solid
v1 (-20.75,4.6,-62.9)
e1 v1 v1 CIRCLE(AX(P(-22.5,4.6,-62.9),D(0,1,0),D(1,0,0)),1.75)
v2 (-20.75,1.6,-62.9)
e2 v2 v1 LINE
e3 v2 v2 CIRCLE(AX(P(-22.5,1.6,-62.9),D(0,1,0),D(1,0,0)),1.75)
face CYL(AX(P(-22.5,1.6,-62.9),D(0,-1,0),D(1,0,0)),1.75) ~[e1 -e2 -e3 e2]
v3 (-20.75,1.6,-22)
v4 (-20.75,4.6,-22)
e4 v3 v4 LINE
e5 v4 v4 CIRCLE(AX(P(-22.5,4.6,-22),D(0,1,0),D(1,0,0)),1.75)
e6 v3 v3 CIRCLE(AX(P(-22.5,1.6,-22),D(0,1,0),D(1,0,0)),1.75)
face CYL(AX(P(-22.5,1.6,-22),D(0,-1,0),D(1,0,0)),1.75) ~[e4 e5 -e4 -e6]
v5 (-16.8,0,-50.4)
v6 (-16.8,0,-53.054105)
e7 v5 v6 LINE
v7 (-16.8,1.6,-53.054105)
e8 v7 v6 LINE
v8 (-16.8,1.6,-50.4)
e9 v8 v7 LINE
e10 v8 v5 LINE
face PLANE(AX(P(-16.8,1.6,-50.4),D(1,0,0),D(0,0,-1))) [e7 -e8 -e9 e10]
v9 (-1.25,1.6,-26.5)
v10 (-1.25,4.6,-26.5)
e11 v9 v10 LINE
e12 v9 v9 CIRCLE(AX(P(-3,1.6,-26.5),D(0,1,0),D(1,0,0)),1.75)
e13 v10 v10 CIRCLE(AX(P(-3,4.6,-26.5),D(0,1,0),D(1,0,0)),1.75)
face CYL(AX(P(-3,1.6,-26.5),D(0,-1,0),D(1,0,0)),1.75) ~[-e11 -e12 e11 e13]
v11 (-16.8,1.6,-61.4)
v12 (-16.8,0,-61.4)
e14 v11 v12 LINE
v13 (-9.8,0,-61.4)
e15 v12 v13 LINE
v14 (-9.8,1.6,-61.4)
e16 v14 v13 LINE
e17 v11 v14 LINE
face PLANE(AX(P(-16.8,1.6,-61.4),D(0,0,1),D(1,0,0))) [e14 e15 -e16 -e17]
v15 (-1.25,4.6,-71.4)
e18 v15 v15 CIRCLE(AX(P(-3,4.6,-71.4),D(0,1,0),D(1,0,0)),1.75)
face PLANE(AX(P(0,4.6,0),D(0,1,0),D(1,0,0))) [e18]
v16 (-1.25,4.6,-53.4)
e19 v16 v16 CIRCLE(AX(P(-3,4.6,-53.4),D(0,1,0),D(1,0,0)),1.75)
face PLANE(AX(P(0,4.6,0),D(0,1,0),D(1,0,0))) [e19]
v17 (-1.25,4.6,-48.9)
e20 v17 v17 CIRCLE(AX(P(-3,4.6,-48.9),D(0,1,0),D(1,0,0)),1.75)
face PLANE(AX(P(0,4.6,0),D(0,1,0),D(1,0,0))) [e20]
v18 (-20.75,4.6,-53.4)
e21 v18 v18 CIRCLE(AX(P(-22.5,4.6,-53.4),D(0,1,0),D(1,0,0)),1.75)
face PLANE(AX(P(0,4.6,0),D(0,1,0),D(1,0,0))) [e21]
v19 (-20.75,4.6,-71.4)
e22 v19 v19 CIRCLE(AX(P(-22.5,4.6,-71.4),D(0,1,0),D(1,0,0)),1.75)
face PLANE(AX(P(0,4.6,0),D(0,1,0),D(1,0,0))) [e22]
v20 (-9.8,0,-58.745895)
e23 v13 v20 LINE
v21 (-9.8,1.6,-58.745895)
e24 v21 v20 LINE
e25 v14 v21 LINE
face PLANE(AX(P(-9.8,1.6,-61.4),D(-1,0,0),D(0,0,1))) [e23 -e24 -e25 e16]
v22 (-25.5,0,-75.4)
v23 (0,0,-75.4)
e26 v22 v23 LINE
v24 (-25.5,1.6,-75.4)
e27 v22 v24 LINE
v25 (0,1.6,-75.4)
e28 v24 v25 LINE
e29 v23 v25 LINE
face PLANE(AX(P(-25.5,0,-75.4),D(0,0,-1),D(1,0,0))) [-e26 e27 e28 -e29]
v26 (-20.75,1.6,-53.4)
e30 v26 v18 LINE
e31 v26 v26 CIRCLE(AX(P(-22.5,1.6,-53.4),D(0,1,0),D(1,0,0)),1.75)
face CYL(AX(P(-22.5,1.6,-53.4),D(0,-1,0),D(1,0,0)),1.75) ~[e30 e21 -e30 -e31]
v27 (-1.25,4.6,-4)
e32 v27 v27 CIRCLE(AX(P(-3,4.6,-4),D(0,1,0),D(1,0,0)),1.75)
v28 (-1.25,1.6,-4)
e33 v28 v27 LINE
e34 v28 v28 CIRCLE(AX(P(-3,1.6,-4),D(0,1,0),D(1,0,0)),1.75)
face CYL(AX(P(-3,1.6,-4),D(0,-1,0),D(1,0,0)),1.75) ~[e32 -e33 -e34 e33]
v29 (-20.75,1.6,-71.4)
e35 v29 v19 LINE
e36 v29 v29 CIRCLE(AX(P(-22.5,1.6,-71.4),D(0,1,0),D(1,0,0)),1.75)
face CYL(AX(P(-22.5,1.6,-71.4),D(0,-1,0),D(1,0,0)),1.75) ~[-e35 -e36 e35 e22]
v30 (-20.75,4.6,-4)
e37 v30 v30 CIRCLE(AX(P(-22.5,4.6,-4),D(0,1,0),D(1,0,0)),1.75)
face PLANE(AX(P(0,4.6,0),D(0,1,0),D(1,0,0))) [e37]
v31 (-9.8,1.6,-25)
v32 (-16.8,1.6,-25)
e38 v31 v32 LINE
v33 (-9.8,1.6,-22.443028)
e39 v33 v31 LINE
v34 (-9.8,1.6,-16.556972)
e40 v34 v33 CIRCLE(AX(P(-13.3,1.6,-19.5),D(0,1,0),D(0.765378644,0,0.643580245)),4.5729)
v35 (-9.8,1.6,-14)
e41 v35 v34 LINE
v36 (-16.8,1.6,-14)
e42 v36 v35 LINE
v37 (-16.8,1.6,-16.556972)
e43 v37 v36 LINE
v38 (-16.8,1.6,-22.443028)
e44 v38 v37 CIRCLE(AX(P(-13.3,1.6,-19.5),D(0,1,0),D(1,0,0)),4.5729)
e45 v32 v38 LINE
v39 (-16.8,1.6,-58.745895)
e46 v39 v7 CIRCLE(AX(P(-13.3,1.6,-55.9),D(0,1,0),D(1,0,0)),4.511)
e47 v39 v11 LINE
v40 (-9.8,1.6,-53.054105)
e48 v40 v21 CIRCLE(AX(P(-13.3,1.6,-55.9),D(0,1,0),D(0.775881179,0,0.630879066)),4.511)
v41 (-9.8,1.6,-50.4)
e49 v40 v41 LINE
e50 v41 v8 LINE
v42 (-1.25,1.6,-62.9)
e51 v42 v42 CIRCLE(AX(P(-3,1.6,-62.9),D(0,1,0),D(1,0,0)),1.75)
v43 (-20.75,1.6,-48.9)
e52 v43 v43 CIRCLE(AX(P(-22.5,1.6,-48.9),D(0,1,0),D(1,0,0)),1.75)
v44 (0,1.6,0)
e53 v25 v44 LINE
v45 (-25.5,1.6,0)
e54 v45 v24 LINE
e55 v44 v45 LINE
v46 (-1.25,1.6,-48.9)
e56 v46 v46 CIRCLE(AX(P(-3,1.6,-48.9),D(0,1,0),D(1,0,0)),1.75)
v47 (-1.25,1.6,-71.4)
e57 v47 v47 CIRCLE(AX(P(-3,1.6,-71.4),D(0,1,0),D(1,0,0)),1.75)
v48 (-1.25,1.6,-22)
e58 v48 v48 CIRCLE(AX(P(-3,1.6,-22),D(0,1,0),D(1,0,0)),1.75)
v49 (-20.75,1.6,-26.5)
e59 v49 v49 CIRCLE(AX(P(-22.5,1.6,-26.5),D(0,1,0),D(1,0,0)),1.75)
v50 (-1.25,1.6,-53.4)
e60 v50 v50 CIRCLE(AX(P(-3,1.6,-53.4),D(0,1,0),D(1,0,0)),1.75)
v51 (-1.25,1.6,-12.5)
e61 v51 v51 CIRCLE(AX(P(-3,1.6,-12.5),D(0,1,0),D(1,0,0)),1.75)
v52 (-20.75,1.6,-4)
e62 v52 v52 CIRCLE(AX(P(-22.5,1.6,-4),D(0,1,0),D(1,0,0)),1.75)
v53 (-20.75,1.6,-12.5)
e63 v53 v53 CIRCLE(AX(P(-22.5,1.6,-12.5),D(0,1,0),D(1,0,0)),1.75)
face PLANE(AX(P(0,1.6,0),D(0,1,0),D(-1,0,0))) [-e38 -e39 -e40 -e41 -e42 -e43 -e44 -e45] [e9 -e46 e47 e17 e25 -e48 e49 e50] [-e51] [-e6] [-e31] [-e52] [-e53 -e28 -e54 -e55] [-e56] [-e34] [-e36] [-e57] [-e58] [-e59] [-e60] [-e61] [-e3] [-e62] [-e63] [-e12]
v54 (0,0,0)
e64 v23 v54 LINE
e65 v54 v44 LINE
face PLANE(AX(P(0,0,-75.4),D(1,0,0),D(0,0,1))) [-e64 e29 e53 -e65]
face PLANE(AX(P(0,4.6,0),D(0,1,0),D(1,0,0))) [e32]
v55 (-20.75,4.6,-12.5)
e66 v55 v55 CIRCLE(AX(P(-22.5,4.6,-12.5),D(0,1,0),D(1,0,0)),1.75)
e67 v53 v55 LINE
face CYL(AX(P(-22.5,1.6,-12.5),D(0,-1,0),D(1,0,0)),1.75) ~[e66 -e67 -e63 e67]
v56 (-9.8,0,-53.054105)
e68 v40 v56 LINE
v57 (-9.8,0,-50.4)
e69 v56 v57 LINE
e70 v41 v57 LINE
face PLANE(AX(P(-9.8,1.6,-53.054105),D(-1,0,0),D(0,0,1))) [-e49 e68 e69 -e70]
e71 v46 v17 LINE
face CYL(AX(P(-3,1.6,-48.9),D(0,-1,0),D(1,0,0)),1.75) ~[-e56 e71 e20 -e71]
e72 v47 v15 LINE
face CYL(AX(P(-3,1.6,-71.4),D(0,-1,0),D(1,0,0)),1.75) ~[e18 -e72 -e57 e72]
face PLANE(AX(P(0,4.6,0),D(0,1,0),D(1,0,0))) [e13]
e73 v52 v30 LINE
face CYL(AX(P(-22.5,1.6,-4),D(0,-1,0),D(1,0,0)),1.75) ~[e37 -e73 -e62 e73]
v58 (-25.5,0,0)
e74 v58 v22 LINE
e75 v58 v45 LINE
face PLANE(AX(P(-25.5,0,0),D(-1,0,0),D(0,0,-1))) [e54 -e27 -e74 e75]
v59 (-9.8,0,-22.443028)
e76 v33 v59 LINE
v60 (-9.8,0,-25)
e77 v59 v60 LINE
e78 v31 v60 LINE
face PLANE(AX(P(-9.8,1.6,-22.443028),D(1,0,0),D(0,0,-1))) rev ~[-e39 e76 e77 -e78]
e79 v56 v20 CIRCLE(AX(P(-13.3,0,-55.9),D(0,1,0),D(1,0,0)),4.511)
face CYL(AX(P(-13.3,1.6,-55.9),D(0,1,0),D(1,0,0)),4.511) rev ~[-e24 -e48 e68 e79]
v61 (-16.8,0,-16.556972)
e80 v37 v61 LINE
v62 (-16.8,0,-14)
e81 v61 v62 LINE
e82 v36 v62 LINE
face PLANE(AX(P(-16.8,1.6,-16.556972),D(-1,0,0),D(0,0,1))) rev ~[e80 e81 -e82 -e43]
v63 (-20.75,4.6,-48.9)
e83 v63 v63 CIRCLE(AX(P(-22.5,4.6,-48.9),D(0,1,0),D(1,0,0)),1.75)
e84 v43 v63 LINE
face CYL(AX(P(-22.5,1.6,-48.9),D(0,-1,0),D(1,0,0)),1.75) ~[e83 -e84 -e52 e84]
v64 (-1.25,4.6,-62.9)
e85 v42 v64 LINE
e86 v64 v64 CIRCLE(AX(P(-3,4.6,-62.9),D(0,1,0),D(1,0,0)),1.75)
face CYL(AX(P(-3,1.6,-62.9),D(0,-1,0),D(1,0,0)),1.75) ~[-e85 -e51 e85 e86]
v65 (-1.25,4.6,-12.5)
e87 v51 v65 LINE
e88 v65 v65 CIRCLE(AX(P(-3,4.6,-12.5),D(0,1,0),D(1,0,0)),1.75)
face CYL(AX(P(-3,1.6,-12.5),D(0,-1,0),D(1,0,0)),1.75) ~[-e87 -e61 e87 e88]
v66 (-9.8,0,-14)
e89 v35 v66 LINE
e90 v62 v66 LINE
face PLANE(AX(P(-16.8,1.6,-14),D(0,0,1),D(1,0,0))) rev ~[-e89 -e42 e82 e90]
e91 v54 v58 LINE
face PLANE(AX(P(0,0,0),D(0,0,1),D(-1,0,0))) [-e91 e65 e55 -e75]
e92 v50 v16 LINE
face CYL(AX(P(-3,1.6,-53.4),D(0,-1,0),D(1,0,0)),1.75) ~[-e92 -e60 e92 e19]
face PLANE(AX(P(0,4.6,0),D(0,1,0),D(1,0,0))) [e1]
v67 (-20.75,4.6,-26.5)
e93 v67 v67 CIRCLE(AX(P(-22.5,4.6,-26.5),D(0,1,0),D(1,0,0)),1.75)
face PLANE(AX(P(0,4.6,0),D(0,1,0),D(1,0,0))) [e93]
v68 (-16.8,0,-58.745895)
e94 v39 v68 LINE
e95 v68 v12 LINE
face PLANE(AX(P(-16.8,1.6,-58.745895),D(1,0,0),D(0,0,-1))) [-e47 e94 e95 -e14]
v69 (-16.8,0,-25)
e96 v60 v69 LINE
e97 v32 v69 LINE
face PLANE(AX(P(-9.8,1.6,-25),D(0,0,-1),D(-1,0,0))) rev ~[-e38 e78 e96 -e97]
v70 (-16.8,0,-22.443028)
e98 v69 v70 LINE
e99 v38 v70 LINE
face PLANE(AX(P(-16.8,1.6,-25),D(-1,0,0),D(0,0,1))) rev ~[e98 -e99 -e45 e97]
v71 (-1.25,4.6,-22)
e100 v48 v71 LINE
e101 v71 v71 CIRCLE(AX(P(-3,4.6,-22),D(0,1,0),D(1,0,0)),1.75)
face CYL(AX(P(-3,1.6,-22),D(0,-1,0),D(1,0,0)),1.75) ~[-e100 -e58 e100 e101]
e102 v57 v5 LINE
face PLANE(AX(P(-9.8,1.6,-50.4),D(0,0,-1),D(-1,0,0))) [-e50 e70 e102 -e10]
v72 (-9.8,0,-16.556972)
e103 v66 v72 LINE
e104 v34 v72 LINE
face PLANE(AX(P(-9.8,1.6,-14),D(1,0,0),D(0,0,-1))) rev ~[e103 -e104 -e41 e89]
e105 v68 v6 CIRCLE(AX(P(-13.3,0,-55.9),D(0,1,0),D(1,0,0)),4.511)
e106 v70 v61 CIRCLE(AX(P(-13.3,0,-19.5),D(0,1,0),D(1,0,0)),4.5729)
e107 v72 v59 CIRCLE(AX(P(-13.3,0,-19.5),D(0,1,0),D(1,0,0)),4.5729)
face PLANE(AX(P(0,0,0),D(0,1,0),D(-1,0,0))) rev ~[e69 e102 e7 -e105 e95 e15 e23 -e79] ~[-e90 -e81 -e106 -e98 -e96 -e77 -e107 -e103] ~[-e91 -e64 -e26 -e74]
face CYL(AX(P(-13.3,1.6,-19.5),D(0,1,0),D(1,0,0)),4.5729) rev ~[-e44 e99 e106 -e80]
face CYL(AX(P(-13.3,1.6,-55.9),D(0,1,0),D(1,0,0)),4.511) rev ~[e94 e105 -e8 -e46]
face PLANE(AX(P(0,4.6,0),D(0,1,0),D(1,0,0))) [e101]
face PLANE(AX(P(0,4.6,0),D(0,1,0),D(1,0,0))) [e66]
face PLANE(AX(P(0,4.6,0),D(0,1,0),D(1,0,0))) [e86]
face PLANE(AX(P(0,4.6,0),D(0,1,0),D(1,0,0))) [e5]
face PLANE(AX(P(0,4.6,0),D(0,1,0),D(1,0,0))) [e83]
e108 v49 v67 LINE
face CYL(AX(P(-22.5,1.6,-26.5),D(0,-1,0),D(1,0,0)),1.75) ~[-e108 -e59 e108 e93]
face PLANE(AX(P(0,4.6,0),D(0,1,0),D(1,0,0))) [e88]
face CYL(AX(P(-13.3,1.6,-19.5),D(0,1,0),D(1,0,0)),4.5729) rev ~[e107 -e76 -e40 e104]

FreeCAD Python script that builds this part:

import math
import FreeCAD as App
import Part
import Sketcher

V = App.Vector
Q = App.Units.Quantity


def add_polygon(sketch, points):
    """Adds a closed chain of lines whose ends are joined by coincident constraints."""
    first, n = sketch.GeometryCount, len(points)
    for a, b in zip(points, points[1:] + points[:1]):
        sketch.addGeometry(Part.LineSegment(App.Vector(*a, 0), App.Vector(*b, 0)), False)
    for i in range(n):
        sketch.addConstraint(Sketcher.Constraint("Coincident", first + i, 2, first + (i + 1) % n, 1))

doc = App.newDocument("Part")
params = doc.addObject("Spreadsheet::Sheet", "Params")
for row, (alias, value) in enumerate([
    ("sketch1_width", "25.5 mm"),
    ("sketch1_height", "75.4 mm"),
    ("pad1_length", "1.6 mm"),
    ("sketch2_diameter", "3.5 mm"),
    ("pad2_length", "3 mm"),
    ("sketch3_width", "7 mm"),
    ("pocket1_length", "3 mm"),
], start=1):
    params.set(f"A{row}", alias)
    params.set(f"B{row}", "=" + value)
    params.setAlias(f"B{row}", alias)

body = doc.addObject("PartDesign::Body", "Body")

# Sketch on XZ plane
sketch1 = body.newObject("Sketcher::SketchObject", "Sketch")
sketch1.AttachmentSupport = (doc.getObject("XZ_Plane"), [""])
sketch1.MapMode = "FlatFace"
add_polygon(sketch1, [(-26, 0), (0, 0), (0, -75), (-26, -75)])  # lines 0-3
sketch1.addConstraint(Sketcher.Constraint("Horizontal", 0))
sketch1.addConstraint(Sketcher.Constraint("Vertical", 1))
sketch1.addConstraint(Sketcher.Constraint("Horizontal", 2))
sketch1.addConstraint(Sketcher.Constraint("Vertical", 3))
sketch1.addConstraint(Sketcher.Constraint("Coincident", 0, 2, -1, 1))
sketch1.addConstraint(Sketcher.Constraint("DistanceX", 0, 1, 0, 2, Q("25.5 mm")))
sketch1.addConstraint(Sketcher.Constraint("DistanceY", 1, 2, 1, 1, Q("75.4 mm")))
sketch1.setExpression("Constraints[9]", "Params.sketch1_width")
sketch1.setExpression("Constraints[10]", "Params.sketch1_height")
pad1 = body.newObject("PartDesign::Pad", "Pad")
pad1.Profile = sketch1
pad1.setExpression("Length", "Params.pad1_length")
pad1.Reversed = True

# Sketch on XZ plane
sketch2 = body.newObject("Sketcher::SketchObject", "Sketch001")
sketch2.AttachmentSupport = (doc.getObject("XZ_Plane"), [""])
sketch2.MapMode = "FlatFace"
sketch2.AttachmentOffset = App.Placement(V(0, 0, -1.6), App.Rotation())
sketch2.addGeometry(Part.Circle(V(-22.5, -71.4, 0), V(0, 0, 1), 1.8), False)
sketch2.addGeometry(Part.Circle(V(-22.5, -62.9, 0), V(0, 0, 1), 1.8), False)
sketch2.addGeometry(Part.Circle(V(-22.5, -53.4, 0), V(0, 0, 1), 1.8), False)
sketch2.addGeometry(Part.Circle(V(-22.5, -48.9, 0), V(0, 0, 1), 1.8), False)
sketch2.addGeometry(Part.Circle(V(-3, -71.4, 0), V(0, 0, 1), 1.8), False)
sketch2.addGeometry(Part.Circle(V(-3, -62.9, 0), V(0, 0, 1), 1.8), False)
sketch2.addGeometry(Part.Circle(V(-3, -53.4, 0), V(0, 0, 1), 1.8), False)
sketch2.addGeometry(Part.Circle(V(-3, -48.9, 0), V(0, 0, 1), 1.8), False)
sketch2.addGeometry(Part.Circle(V(-22.5, -4, 0), V(0, 0, 1), 1.8), False)
sketch2.addGeometry(Part.Circle(V(-22.5, -12.5, 0), V(0, 0, 1), 1.8), False)
sketch2.addGeometry(Part.Circle(V(-22.5, -22, 0), V(0, 0, 1), 1.8), False)
sketch2.addGeometry(Part.Circle(V(-22.5, -26.5, 0), V(0, 0, 1), 1.8), False)
sketch2.addGeometry(Part.Circle(V(-3, -22, 0), V(0, 0, 1), 1.8), False)
sketch2.addGeometry(Part.Circle(V(-3, -12.5, 0), V(0, 0, 1), 1.8), False)
sketch2.addGeometry(Part.Circle(V(-3, -4, 0), V(0, 0, 1), 1.8), False)
sketch2.addGeometry(Part.Circle(V(-3, -26.5, 0), V(0, 0, 1), 1.8), False)
sketch2.addConstraint(Sketcher.Constraint("Equal", 0, 1))
sketch2.addConstraint(Sketcher.Constraint("Equal", 1, 2))
sketch2.addConstraint(Sketcher.Constraint("Equal", 2, 3))
sketch2.addConstraint(Sketcher.Constraint("Equal", 3, 4))
sketch2.addConstraint(Sketcher.Constraint("Equal", 4, 5))
sketch2.addConstraint(Sketcher.Constraint("Equal", 5, 6))
sketch2.addConstraint(Sketcher.Constraint("Equal", 6, 7))
sketch2.addConstraint(Sketcher.Constraint("Equal", 7, 8))
sketch2.addConstraint(Sketcher.Constraint("Equal", 8, 9))
sketch2.addConstraint(Sketcher.Constraint("Equal", 9, 10))
sketch2.addConstraint(Sketcher.Constraint("Equal", 10, 11))
sketch2.addConstraint(Sketcher.Constraint("Equal", 11, 12))
sketch2.addConstraint(Sketcher.Constraint("Equal", 12, 13))
sketch2.addConstraint(Sketcher.Constraint("Equal", 13, 14))
sketch2.addConstraint(Sketcher.Constraint("Equal", 14, 15))
sketch2.addConstraint(Sketcher.Constraint("Horizontal", 0, 3, 4, 3))
sketch2.addConstraint(Sketcher.Constraint("Horizontal", 1, 3, 5, 3))
sketch2.addConstraint(Sketcher.Constraint("Horizontal", 2, 3, 6, 3))
sketch2.addConstraint(Sketcher.Constraint("Horizontal", 3, 3, 7, 3))
sketch2.addConstraint(Sketcher.Constraint("Horizontal", 10, 3, 12, 3))
sketch2.addConstraint(Sketcher.Constraint("Horizontal", 9, 3, 13, 3))
sketch2.addConstraint(Sketcher.Constraint("Horizontal", 8, 3, 14, 3))
sketch2.addConstraint(Sketcher.Constraint("Horizontal", 11, 3, 15, 3))
sketch2.addConstraint(Sketcher.Constraint("Vertical", 0, 3, 1, 3))
sketch2.addConstraint(Sketcher.Constraint("Vertical", 1, 3, 2, 3))
sketch2.addConstraint(Sketcher.Constraint("Vertical", 2, 3, 3, 3))
sketch2.addConstraint(Sketcher.Constraint("Vertical", 4, 3, 5, 3))
sketch2.addConstraint(Sketcher.Constraint("Vertical", 5, 3, 6, 3))
sketch2.addConstraint(Sketcher.Constraint("Vertical", 6, 3, 7, 3))
sketch2.addConstraint(Sketcher.Constraint("Vertical", 3, 3, 8, 3))
sketch2.addConstraint(Sketcher.Constraint("Vertical", 8, 3, 9, 3))
sketch2.addConstraint(Sketcher.Constraint("Vertical", 9, 3, 10, 3))
sketch2.addConstraint(Sketcher.Constraint("Vertical", 10, 3, 11, 3))
sketch2.addConstraint(Sketcher.Constraint("Vertical", 7, 3, 12, 3))
sketch2.addConstraint(Sketcher.Constraint("Vertical", 12, 3, 13, 3))
sketch2.addConstraint(Sketcher.Constraint("Vertical", 13, 3, 14, 3))
sketch2.addConstraint(Sketcher.Constraint("Vertical", 14, 3, 15, 3))
sketch2.addConstraint(Sketcher.Constraint("Diameter", 0, Q("3.5 mm")))
sketch2.addConstraint(Sketcher.Constraint("DistanceX", 4, 3, -1, 1, Q("3 mm")))
sketch2.addConstraint(Sketcher.Constraint("DistanceY", 8, 3, -1, 1, Q("4 mm")))
sketch2.addConstraint(Sketcher.Constraint("DistanceY", 10, 3, -1, 1, Q("22 mm")))
sketch2.addConstraint(Sketcher.Constraint("DistanceY", 9, 3, -1, 1, Q("12.5 mm")))
sketch2.addConstraint(Sketcher.Constraint("DistanceY", 11, 3, -1, 1, Q("26.5 mm")))
sketch2.addConstraint(Sketcher.Constraint("DistanceY", 0, 3, 2, 3, Q("18 mm")))
sketch2.addConstraint(Sketcher.Constraint("DistanceY", 1, 3, 3, 3, Q("14 mm")))
sketch2.addConstraint(Sketcher.Constraint("DistanceX", 0, 3, -1, 1, Q("22.5 mm")))
sketch2.addConstraint(Sketcher.Constraint("DistanceY", 0, 3, -1, 1, Q("71.4 mm")))
sketch2.addConstraint(Sketcher.Constraint("DistanceY", 1, 3, -1, 1, Q("62.9 mm")))
sketch2.setExpression("Constraints[37]", "Params.sketch2_diameter")
pad2 = body.newObject("PartDesign::Pad", "Pad001")
pad2.Profile = sketch2
pad2.setExpression("Length", "Params.pad2_length")
pad2.Reversed = True

# Sketch on XZ plane
sketch3 = body.newObject("Sketcher::SketchObject", "Sketch002")
sketch3.AttachmentSupport = (doc.getObject("XZ_Plane"), [""])
sketch3.MapMode = "FlatFace"
sketch3.AttachmentOffset = App.Placement(V(0, 0, -1.6), App.Rotation())
sketch3.addGeometry(Part.LineSegment(V(-9.8, -61.4, 0), V(-16.8, -61.4, 0)), False)
sketch3.addGeometry(Part.LineSegment(V(-16.8, -61.4, 0), V(-16.8, -58.7, 0)), False)
sketch3.addGeometry(Part.ArcOfCircle(Part.Circle(V(-13.3, -55.9, 0), V(0, 0, 1), 4.5), math.radians(141), math.radians(219)), False)
sketch3.addGeometry(Part.LineSegment(V(-16.8, -53.1, 0), V(-16.8, -50.4, 0)), False)
sketch3.addGeometry(Part.LineSegment(V(-16.8, -50.4, 0), V(-9.8, -50.4, 0)), False)
sketch3.addGeometry(Part.LineSegment(V(-9.8, -50.4, 0), V(-9.8, -53.1, 0)), False)
sketch3.addGeometry(Part.ArcOfCircle(Part.Circle(V(-13.3, -55.9, 0), V(0, 0, 1), 4.5), math.radians(-39), math.radians(39)), False)
sketch3.addGeometry(Part.LineSegment(V(-9.8, -58.7, 0), V(-9.8, -61.4, 0)), False)
sketch3.addGeometry(Part.LineSegment(V(-16.8, -16.6, 0), V(-16.8, -14, 0)), False)
sketch3.addGeometry(Part.LineSegment(V(-16.8, -14, 0), V(-9.8, -14, 0)), False)
sketch3.addGeometry(Part.LineSegment(V(-9.8, -14, 0), V(-9.8, -16.6, 0)), False)
sketch3.addGeometry(Part.ArcOfCircle(Part.Circle(V(-13.3, -19.5, 0), V(0, 0, 1), 4.6), math.radians(-40), math.radians(40)), False)
sketch3.addGeometry(Part.LineSegment(V(-9.8, -22.4, 0), V(-9.8, -25, 0)), False)
sketch3.addGeometry(Part.LineSegment(V(-9.8, -25, 0), V(-16.8, -25, 0)), False)
sketch3.addGeometry(Part.LineSegment(V(-16.8, -25, 0), V(-16.8, -22.4, 0)), False)
sketch3.addGeometry(Part.ArcOfCircle(Part.Circle(V(-13.3, -19.5, 0), V(0, 0, 1), 4.6), math.radians(140), math.radians(220)), False)
sketch3.addConstraint(Sketcher.Constraint("Coincident", 0, 2, 1, 1))
sketch3.addConstraint(Sketcher.Constraint("Coincident", 1, 2, 2, 2))
sketch3.addConstraint(Sketcher.Constraint("Coincident", 2, 1, 3, 1))
sketch3.addConstraint(Sketcher.Constraint("Coincident", 3, 2, 4, 1))
sketch3.addConstraint(Sketcher.Constraint("Coincident", 4, 2, 5, 1))
sketch3.addConstraint(Sketcher.Constraint("Coincident", 5, 2, 6, 2))
sketch3.addConstraint(Sketcher.Constraint("Coincident", 6, 1, 7, 1))
sketch3.addConstraint(Sketcher.Constraint("Coincident", 7, 2, 0, 1))
sketch3.addConstraint(Sketcher.Constraint("Coincident", 8, 2, 9, 1))
sketch3.addConstraint(Sketcher.Constraint("Coincident", 9, 2, 10, 1))
sketch3.addConstraint(Sketcher.Constraint("Coincident", 10, 2, 11, 2))
sketch3.addConstraint(Sketcher.Constraint("Coincident", 11, 1, 12, 1))
sketch3.addConstraint(Sketcher.Constraint("Coincident", 12, 2, 13, 1))
sketch3.addConstraint(Sketcher.Constraint("Coincident", 13, 2, 14, 1))
sketch3.addConstraint(Sketcher.Constraint("Coincident", 14, 2, 15, 2))
sketch3.addConstraint(Sketcher.Constraint("Coincident", 15, 1, 8, 1))
sketch3.addConstraint(Sketcher.Constraint("Horizontal", 0))
sketch3.addConstraint(Sketcher.Constraint("Vertical", 1))
sketch3.addConstraint(Sketcher.Constraint("Vertical", 3))
sketch3.addConstraint(Sketcher.Constraint("Horizontal", 4))
sketch3.addConstraint(Sketcher.Constraint("Vertical", 5))
sketch3.addConstraint(Sketcher.Constraint("Vertical", 7))
sketch3.addConstraint(Sketcher.Constraint("Vertical", 8))
sketch3.addConstraint(Sketcher.Constraint("Horizontal", 9))
sketch3.addConstraint(Sketcher.Constraint("Vertical", 10))
sketch3.addConstraint(Sketcher.Constraint("Vertical", 12))
sketch3.addConstraint(Sketcher.Constraint("Horizontal", 13))
sketch3.addConstraint(Sketcher.Constraint("Vertical", 14))
sketch3.addConstraint(Sketcher.Constraint("Coincident", 6, 3, 2, 3))
sketch3.addConstraint(Sketcher.Constraint("Coincident", 15, 3, 11, 3))
sketch3.addConstraint(Sketcher.Constraint("Equal", 2, 6))
sketch3.addConstraint(Sketcher.Constraint("Equal", 11, 15))
sketch3.addConstraint(Sketcher.Constraint("Horizontal", 2, 1, 5, 2))
sketch3.addConstraint(Sketcher.Constraint("Horizontal", 1, 2, 6, 1))
sketch3.addConstraint(Sketcher.Constraint("Horizontal", 11, 1, 14, 2))
sketch3.addConstraint(Sketcher.Constraint("Horizontal", 10, 2, 15, 1))
sketch3.addConstraint(Sketcher.Constraint("Vertical", 6, 3, 11, 3))
sketch3.addConstraint(Sketcher.Constraint("Vertical", 1, 2, 2, 1))
sketch3.addConstraint(Sketcher.Constraint("Vertical", 3, 2, 8, 2))
sketch3.addConstraint(Sketcher.Constraint("Vertical", 10, 2, 11, 1))
sketch3.addConstraint(Sketcher.Constraint("Equal", 1, 3))
sketch3.addConstraint(Sketcher.Constraint("Equal", 10, 12))
sketch3.addConstraint(Sketcher.Constraint("DistanceX", 0, 2, 0, 1, Q("7 mm")))
sketch3.addConstraint(Sketcher.Constraint("DistanceY", 8, 2, -1, 1, Q("14 mm")))
sketch3.addConstraint(Sketcher.Constraint("DistanceY", 0, 2, 3, 2, Q("11 mm")))
sketch3.addConstraint(Sketcher.Constraint("DistanceY", 12, 2, 9, 2, Q("11 mm")))
sketch3.addConstraint(Sketcher.Constraint("Radius", 2, Q("4.511 mm")))
sketch3.addConstraint(Sketcher.Constraint("Radius", 11, Q("4.573 mm")))
sketch3.addConstraint(Sketcher.Constraint("DistanceX", 2, 3, -1, 1, Q("13.3 mm")))
sketch3.addConstraint(Sketcher.Constraint("DistanceY", 2, 3, -1, 1, Q("55.9 mm")))
sketch3.setExpression("Constraints[42]", "Params.sketch3_width")
pocket1 = body.newObject("PartDesign::Pocket", "Pocket")
pocket1.Profile = sketch3
pocket1.setExpression("Length", "Params.pocket1_length")
pocket1.Reversed = True

doc.recompute()
